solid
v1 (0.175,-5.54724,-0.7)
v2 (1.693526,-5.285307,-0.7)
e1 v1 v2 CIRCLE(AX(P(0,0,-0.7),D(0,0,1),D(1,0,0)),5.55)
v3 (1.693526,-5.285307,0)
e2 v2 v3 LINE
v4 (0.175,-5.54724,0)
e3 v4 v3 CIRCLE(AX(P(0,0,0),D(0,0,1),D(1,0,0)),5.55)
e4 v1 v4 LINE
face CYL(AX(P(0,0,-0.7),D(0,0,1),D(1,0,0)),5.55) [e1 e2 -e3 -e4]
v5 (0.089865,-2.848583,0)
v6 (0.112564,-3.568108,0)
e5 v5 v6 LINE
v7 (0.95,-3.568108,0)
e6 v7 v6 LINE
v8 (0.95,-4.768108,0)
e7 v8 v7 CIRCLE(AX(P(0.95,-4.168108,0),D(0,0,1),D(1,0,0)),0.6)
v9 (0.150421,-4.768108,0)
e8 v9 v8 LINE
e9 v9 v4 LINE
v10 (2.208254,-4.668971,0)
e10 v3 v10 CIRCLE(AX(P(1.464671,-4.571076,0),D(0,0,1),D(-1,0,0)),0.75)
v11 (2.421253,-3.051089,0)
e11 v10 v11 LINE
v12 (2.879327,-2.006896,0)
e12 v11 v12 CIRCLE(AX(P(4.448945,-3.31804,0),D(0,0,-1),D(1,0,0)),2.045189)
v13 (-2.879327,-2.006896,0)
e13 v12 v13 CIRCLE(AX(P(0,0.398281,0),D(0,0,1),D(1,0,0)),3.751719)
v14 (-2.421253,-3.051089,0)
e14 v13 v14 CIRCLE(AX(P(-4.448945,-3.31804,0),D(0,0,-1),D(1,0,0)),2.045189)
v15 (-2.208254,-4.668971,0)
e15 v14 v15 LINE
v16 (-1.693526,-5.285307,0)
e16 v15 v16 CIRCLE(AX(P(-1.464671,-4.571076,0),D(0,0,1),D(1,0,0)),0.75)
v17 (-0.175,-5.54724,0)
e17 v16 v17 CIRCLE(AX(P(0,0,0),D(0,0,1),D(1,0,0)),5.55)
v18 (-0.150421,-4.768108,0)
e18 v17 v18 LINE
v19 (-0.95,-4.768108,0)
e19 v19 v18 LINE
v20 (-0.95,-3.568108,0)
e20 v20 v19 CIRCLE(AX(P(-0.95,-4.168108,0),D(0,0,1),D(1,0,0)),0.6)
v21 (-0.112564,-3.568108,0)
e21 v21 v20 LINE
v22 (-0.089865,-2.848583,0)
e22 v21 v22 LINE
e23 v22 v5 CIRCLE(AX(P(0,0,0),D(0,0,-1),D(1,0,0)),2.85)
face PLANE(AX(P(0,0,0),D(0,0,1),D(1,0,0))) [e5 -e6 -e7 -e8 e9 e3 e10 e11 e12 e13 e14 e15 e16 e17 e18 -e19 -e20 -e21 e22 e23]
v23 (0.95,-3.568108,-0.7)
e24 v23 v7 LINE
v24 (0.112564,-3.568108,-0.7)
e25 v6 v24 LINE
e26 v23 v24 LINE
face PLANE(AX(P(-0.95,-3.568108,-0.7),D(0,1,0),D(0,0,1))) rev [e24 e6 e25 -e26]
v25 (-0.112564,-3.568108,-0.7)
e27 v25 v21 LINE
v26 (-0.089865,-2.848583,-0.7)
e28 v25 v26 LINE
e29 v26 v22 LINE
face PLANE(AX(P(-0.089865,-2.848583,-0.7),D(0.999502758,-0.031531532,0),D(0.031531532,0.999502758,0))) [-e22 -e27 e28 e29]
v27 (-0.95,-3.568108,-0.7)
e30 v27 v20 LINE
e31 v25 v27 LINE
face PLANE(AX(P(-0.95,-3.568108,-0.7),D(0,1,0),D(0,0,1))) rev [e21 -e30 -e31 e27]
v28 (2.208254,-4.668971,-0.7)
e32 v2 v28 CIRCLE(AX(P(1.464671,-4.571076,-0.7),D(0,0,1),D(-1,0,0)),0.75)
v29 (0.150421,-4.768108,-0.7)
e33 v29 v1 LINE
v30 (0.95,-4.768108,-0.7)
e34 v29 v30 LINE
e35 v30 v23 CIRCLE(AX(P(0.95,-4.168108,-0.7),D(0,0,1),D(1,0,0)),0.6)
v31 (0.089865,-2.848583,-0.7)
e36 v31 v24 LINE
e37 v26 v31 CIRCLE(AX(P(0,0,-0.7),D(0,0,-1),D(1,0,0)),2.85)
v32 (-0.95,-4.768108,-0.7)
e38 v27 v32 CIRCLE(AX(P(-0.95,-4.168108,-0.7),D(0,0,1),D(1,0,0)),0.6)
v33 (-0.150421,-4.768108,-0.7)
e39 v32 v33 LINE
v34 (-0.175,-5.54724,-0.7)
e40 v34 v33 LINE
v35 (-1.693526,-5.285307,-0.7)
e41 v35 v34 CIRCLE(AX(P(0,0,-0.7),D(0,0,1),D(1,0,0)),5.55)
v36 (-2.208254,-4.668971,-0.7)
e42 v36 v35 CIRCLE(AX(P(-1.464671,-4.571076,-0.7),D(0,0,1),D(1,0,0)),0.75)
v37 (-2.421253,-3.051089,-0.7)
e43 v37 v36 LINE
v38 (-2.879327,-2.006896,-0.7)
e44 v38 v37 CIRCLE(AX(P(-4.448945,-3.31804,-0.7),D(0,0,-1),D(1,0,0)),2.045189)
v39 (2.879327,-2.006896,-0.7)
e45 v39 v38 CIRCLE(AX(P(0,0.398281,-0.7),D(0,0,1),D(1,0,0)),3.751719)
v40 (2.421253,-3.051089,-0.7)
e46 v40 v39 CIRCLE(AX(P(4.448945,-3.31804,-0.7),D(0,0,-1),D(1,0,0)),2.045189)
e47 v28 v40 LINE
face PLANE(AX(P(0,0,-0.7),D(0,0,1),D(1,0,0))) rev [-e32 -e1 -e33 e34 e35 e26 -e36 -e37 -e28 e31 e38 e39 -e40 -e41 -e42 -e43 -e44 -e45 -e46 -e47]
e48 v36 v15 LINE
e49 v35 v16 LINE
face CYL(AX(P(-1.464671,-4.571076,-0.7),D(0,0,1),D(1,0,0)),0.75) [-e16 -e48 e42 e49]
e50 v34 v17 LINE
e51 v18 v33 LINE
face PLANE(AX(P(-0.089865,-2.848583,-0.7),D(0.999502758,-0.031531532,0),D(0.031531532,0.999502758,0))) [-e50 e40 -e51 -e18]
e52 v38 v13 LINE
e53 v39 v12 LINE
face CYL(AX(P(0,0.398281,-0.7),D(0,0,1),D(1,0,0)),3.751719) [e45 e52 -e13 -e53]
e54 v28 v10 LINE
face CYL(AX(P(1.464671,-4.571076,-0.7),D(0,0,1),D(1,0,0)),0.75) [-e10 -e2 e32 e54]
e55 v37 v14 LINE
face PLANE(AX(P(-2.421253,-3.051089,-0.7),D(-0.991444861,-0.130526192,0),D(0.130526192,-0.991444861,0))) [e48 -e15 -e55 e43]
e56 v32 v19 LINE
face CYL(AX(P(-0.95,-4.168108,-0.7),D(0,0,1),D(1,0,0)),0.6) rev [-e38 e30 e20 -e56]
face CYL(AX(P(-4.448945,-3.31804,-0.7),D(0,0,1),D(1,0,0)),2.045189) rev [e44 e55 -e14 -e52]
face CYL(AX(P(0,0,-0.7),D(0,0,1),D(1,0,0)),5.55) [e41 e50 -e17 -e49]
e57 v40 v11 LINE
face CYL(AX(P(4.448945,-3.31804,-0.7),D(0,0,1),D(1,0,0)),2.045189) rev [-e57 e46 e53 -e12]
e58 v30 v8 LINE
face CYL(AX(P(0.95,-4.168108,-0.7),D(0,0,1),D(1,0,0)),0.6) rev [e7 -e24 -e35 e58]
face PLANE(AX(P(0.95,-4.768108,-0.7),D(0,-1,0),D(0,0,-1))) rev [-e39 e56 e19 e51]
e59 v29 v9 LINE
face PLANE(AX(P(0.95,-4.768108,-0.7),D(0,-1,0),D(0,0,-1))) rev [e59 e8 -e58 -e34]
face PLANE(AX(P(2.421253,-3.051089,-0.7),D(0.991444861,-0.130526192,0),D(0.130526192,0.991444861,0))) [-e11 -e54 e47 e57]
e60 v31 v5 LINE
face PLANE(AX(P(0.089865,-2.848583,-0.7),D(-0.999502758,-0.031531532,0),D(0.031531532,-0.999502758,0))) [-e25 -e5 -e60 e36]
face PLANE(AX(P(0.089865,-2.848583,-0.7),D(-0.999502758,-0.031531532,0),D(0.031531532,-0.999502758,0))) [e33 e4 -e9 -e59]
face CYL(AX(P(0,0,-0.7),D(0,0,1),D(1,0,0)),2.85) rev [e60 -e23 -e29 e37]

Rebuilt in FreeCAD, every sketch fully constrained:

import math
import FreeCAD as App
import Part
import Sketcher
Q = App.Units.Quantity


def add_polygon(sketch, points):
    """Adds a closed chain of lines whose ends are joined by coincident constraints."""
    first, n = sketch.GeometryCount, len(points)
    for a, b in zip(points, points[1:] + points[:1]):
        sketch.addGeometry(Part.LineSegment(App.Vector(*a, 0), App.Vector(*b, 0)), False)
    for i in range(n):
        sketch.addConstraint(Sketcher.Constraint("Coincident", first + i, 2, first + (i + 1) % n, 1))

doc = App.newDocument("Part")
body = doc.addObject("PartDesign::Body", "Body")

# Sketch on XY plane
sketch1 = body.newObject("Sketcher::SketchObject", "Sketch")
sketch1.AttachmentSupport = (doc.getObject("XY_Plane"), [""])
sketch1.MapMode = "FlatFace"
sketch1.addGeometry([
    Part.LineSegment(App.Vector(0.09, -2.85, 0), App.Vector(0.17, -5.55, 0)),  # 0
    Part.ArcOfCircle(Part.Circle(App.Vector(0, 0, 0), App.Vector(0, 0, 1), 5.55), math.radians(-88.19), math.radians(-72.23)),  # 1
    Part.ArcOfCircle(Part.Circle(App.Vector(1.46, -4.57, 0), App.Vector(0, 0, 1), 0.75), math.radians(-72), math.radians(-7)),  # 2
    Part.LineSegment(App.Vector(2.21, -4.67, 0), App.Vector(2.42, -3.05, 0)),  # 3
    Part.ArcOfCircle(Part.Circle(App.Vector(4.45, -3.32, 0), App.Vector(0, 0, 1), 2.05), math.radians(140), math.radians(172)),  # 4
    Part.ArcOfCircle(Part.Circle(App.Vector(0, 0.4, 0), App.Vector(0, 0, 1), 3.75), math.radians(-40), math.radians(220)),  # 5
    Part.ArcOfCircle(Part.Circle(App.Vector(-4.45, -3.32, 0), App.Vector(0, 0, 1), 2.05), math.radians(8), math.radians(40)),  # 6
    Part.LineSegment(App.Vector(-2.42, -3.05, 0), App.Vector(-2.21, -4.67, 0)),  # 7
    Part.ArcOfCircle(Part.Circle(App.Vector(-1.46, -4.57, 0), App.Vector(0, 0, 1), 0.75), math.radians(-173), math.radians(-108)),  # 8
    Part.ArcOfCircle(Part.Circle(App.Vector(0, 0, 0), App.Vector(0, 0, 1), 5.55), math.radians(-107.77), math.radians(-91.81)),  # 9
    Part.LineSegment(App.Vector(-0.17, -5.55, 0), App.Vector(-0.09, -2.85, 0)),  # 10
    Part.ArcOfCircle(Part.Circle(App.Vector(0, 0, 0), App.Vector(0, 0, 1), 2.85), math.radians(-88), math.radians(268)),  # 11
    Part.Circle(App.Vector(-0.95, -4.17, 0), App.Vector(0, 0, 1), 0.6),  # 12
    Part.Circle(App.Vector(0.95, -4.17, 0), App.Vector(0, 0, 1), 0.6),  # 13
], False)
sketch1.addConstraint([
    Sketcher.Constraint("Coincident", 0, 2, 1, 1),
    Sketcher.Constraint("Tangent", 1, 2, 2, 1),
    Sketcher.Constraint("Tangent", 2, 2, 3, 1),
    Sketcher.Constraint("Tangent", 3, 2, 4, 2),
    Sketcher.Constraint("Tangent", 4, 1, 5, 1),
    Sketcher.Constraint("Tangent", 5, 2, 6, 2),
    Sketcher.Constraint("Tangent", 6, 1, 7, 1),
    Sketcher.Constraint("Tangent", 7, 2, 8, 1),
    Sketcher.Constraint("Tangent", 8, 2, 9, 1),
    Sketcher.Constraint("Coincident", 9, 2, 10, 1),
    Sketcher.Constraint("Coincident", 10, 2, 11, 2),
    Sketcher.Constraint("Coincident", 11, 1, 0, 1),
    Sketcher.Constraint("Coincident", 1, 3, -1, 1),
    Sketcher.Constraint("Coincident", 9, 3, -1, 1),
    Sketcher.Constraint("Coincident", 11, 3, -1, 1),
    Sketcher.Constraint("Equal", 4, 6),
    Sketcher.Constraint("Equal", 2, 8),
    Sketcher.Constraint("Equal", 1, 9),
    Sketcher.Constraint("Equal", 12, 13),
    Sketcher.Constraint("Symmetric", 4, 3, 6, 3, -2),
    Sketcher.Constraint("Symmetric", 12, 3, 13, 3, -2),
    Sketcher.Constraint("Horizontal", 2, 3, 8, 3),
    Sketcher.Constraint("Horizontal", 0, 2, 9, 2),
    Sketcher.Constraint("Horizontal", 10, 2, 11, 1),
    Sketcher.Constraint("Diameter", 12, Q("1.2 mm")),
    Sketcher.Constraint("Radius", 1, Q("5.55 mm")),
    Sketcher.Constraint("Radius", 2, Q("0.75 mm")),
    Sketcher.Constraint("Radius", 11, Q("2.85 mm")),
    Sketcher.Constraint("Angle", 3, Q("82.5 deg")),
    Sketcher.Constraint("DistanceX", 12, 3, 13, 3, Q("1.9 mm")),
    Sketcher.Constraint("Radius", 4, Q("2.045189 mm")),
    Sketcher.Constraint("Radius", 5, Q("3.751719 mm")),
    Sketcher.Constraint("DistanceX", 9, 2, 0, 2, Q("0.35 mm")),
    Sketcher.Constraint("DistanceX", 2, 2, 3, 2, Q("0.212998 mm")),
    Sketcher.Constraint("DistanceY", 0, 2, 4, 3, Q("2.2292 mm")),
    Sketcher.Constraint("DistanceY", 1, 2, 13, 3, Q("1.117199 mm")),
    Sketcher.Constraint("DistanceX", 10, 2, 11, 1, Q("0.17973 mm")),
])
pad1 = body.newObject("PartDesign::Pad", "Pad")
pad1.Profile = sketch1
pad1.Length = 0.7
pad1.Reversed = True

# Sketch on XY plane
sketch2 = body.newObject("Sketcher::SketchObject", "Sketch001")
sketch2.AttachmentSupport = (doc.getObject("XY_Plane"), [""])
sketch2.MapMode = "FlatFace"
add_polygon(sketch2, [(-0.9, -3.6), (-0.9, -4.8), (0.9, -4.8), (0.9, -3.6)])  # lines 0-3
sketch2.addConstraint([
    Sketcher.Constraint("Vertical", 0),
    Sketcher.Constraint("Horizontal", 1),
    Sketcher.Constraint("Vertical", 2),
    Sketcher.Constraint("Horizontal", 3),
    Sketcher.Constraint("DistanceX", 1, 1, 1, 2, Q("1.9 mm")),
    Sketcher.Constraint("DistanceY", 0, 2, 0, 1, Q("1.2 mm")),
    Sketcher.Constraint("DistanceX", 0, 2, -1, 1, Q("0.95 mm")),
    Sketcher.Constraint("DistanceY", 0, 2, -1, 1, Q("4.768108 mm")),
])
pocket1 = body.newObject("PartDesign::Pocket", "Pocket")
pocket1.Profile = sketch2
pocket1.Type = "ThroughAll"

doc.recompute()
